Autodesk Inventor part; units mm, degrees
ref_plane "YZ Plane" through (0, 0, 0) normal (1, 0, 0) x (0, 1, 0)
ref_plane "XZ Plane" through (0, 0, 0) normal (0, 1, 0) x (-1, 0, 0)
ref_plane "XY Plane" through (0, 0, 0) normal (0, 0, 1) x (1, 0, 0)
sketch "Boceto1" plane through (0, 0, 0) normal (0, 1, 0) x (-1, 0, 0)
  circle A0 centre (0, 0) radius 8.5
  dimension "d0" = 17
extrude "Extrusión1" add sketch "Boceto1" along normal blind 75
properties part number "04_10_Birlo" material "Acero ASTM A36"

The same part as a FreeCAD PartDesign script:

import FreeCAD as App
import Part
import Sketcher

V = App.Vector
Q = App.Units.Quantity

doc = App.newDocument("Part")
params = doc.addObject("Spreadsheet::Sheet", "Params")
for row, (alias, value) in enumerate([
    ("sketch1_diameter", "17 mm"),
    ("pad1_length", "75 mm"),
], start=1):
    params.set(f"A{row}", alias)
    params.set(f"B{row}", "=" + value)
    params.setAlias(f"B{row}", alias)

body = doc.addObject("PartDesign::Body", "Body")

# Sketch on XZ plane
sketch1 = body.newObject("Sketcher::SketchObject", "Sketch")
sketch1.AttachmentSupport = (doc.getObject("XZ_Plane"), [""])
sketch1.MapMode = "FlatFace"
sketch1.addGeometry(Part.Circle(V(0, 0, 0), V(0, 0, 1), 8.5), False)
sketch1.addConstraint([
    Sketcher.Constraint("Coincident", 0, 3, -1, 1),
    Sketcher.Constraint("Diameter", 0, Q("17 mm")),
])
sketch1.setExpression("Constraints[1]", "Params.sketch1_diameter")
pad1 = body.newObject("PartDesign::Pad", "Pad")
pad1.Profile = sketch1
pad1.setExpression("Length", "Params.pad1_length")
pad1.Reversed = True

doc.recompute()
